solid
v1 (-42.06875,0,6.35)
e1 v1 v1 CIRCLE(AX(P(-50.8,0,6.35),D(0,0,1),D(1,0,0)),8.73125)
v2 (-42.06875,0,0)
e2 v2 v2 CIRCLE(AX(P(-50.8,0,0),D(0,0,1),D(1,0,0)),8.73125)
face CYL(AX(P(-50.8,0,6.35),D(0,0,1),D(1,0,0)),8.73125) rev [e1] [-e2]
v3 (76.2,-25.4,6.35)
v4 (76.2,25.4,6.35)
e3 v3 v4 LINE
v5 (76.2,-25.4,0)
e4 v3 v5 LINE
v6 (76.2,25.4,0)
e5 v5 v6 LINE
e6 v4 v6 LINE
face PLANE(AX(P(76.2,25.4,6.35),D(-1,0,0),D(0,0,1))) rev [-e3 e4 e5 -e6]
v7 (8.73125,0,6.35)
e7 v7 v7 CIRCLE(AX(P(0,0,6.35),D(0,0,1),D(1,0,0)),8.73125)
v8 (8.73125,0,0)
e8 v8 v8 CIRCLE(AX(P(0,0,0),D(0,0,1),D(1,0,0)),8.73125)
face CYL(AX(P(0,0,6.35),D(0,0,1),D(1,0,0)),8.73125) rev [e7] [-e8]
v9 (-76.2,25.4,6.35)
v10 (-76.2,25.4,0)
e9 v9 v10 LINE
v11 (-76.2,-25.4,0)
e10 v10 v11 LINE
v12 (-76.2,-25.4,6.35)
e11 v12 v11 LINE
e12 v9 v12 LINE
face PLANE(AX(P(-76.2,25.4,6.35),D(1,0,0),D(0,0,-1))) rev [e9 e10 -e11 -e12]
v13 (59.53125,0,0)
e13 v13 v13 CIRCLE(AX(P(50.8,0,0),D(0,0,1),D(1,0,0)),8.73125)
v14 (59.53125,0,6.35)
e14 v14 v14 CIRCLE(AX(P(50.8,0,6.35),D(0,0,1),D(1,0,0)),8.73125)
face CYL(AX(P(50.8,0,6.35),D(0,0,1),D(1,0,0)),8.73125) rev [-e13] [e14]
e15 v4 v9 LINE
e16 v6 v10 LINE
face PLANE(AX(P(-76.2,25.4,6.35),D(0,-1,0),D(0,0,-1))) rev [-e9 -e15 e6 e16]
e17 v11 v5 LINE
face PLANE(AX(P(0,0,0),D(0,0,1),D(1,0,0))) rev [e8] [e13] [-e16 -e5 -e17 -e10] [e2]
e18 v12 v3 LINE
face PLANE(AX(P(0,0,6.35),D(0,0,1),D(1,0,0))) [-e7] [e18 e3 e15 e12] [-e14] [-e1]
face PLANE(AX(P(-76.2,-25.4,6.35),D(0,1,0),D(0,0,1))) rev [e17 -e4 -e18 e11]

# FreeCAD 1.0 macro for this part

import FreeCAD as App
import Part
import Sketcher
from FreeCAD import Vector
Q = App.Units.Quantity


def add_polygon(sketch, points):
    """Adds a closed chain of lines whose ends are joined by coincident constraints."""
    first, n = sketch.GeometryCount, len(points)
    for a, b in zip(points, points[1:] + points[:1]):
        sketch.addGeometry(Part.LineSegment(App.Vector(*a, 0), App.Vector(*b, 0)), False)
    for i in range(n):
        sketch.addConstraint(Sketcher.Constraint("Coincident", first + i, 2, first + (i + 1) % n, 1))

doc = App.newDocument("Part")
body = doc.addObject("PartDesign::Body", "Body")

# Sketch on XY plane
sketch1 = body.newObject("Sketcher::SketchObject", "Sketch")
sketch1.AttachmentSupport = (doc.getObject("XY_Plane"), [""])
sketch1.MapMode = "FlatFace"
add_polygon(sketch1, [(-76, 25), (-76, -25), (76, -25), (76, 25)])  # lines 0-3
sketch1.addConstraint(Sketcher.Constraint("Vertical", 0))
sketch1.addConstraint(Sketcher.Constraint("Horizontal", 1))
sketch1.addConstraint(Sketcher.Constraint("Vertical", 2))
sketch1.addConstraint(Sketcher.Constraint("Horizontal", 3))
sketch1.addConstraint(Sketcher.Constraint("Symmetric", 0, 2, 2, 2, -1, 1))
sketch1.addConstraint(Sketcher.Constraint("DistanceX", 1, 1, 1, 2, Q("6 in")))
sketch1.addConstraint(Sketcher.Constraint("DistanceY", 0, 2, 0, 1, Q("2 in")))
pad1 = body.newObject("PartDesign::Pad", "Pad")
pad1.Profile = sketch1
pad1.Length = Q("0.25 in")

# Sketch on XY plane
sketch2 = body.newObject("Sketcher::SketchObject", "Sketch001")
sketch2.AttachmentSupport = (doc.getObject("XY_Plane"), [""])
sketch2.MapMode = "FlatFace"
sketch2.AttachmentOffset = App.Placement(Vector(0, 0, 0.25 * 25.4), App.Rotation())
sketch2.addGeometry(Part.Circle(Vector(0, 0, 0), Vector(0, 0, 1), 9), False)
sketch2.addGeometry(Part.Circle(Vector(51, 0, 0), Vector(0, 0, 1), 9), False)
sketch2.addGeometry(Part.Circle(Vector(-51, 0, 0), Vector(0, 0, 1), 9), False)
sketch2.addConstraint(Sketcher.Constraint("Coincident", 0, 3, -1, 1))
sketch2.addConstraint(Sketcher.Constraint("Equal", 0, 1))
sketch2.addConstraint(Sketcher.Constraint("Equal", 1, 2))
sketch2.addConstraint(Sketcher.Constraint("Symmetric", 1, 3, 2, 3, -1, 1))
sketch2.addConstraint(Sketcher.Constraint("PointOnObject", 1, 3, -1))
sketch2.addConstraint(Sketcher.Constraint("Diameter", 0, Q("0.6875 in")))
sketch2.addConstraint(Sketcher.Constraint("DistanceX", -1, 1, 1, 3, Q("2 in")))
doc.recompute()
hole = body.newObject("PartDesign::Hole", "Hole")
hole.Profile = sketch2
hole.ThreadType = "None"
hole.Diameter = Q("0.6875 in")
hole.DepthType = "ThroughAll"

doc.recompute()
